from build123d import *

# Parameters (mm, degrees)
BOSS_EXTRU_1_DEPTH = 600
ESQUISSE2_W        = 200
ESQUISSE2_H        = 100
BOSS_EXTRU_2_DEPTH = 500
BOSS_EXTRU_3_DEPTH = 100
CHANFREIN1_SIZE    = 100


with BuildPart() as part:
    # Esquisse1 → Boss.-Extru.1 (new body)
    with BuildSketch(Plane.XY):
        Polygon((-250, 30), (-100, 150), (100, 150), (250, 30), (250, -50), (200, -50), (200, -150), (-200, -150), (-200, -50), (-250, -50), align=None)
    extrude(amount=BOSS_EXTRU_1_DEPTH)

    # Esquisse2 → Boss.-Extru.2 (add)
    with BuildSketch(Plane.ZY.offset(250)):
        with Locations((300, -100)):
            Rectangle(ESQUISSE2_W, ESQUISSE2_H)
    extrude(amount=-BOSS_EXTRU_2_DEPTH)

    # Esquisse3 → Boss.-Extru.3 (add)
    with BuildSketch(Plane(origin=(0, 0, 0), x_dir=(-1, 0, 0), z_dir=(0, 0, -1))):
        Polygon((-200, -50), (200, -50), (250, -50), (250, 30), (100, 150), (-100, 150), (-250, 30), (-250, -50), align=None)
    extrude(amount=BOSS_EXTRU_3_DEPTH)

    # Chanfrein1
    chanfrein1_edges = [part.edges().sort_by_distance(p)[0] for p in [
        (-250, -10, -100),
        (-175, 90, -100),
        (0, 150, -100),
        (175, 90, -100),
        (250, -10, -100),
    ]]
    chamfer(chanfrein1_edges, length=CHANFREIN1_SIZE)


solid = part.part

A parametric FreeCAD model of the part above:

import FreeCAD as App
import Part
import Sketcher

V = App.Vector


def edges_at(feature, points):
    """Names of the edges that pass closest to the given points."""
    edges = feature.Shape.Edges
    near = lambda p: min(range(len(edges)), key=lambda i: edges[i].distToShape(Part.Vertex(*p))[0])
    return sorted({f"Edge{near(p) + 1}" for p in points})

doc = App.newDocument("Part")
body = doc.addObject("PartDesign::Body", "Body")

# Sketch on XY plane
sketch1 = body.newObject("Sketcher::SketchObject", "Sketch")
sketch1.AttachmentSupport = (doc.getObject("XY_Plane"), [""])
sketch1.MapMode = "FlatFace"
sketch1.addGeometry(Part.LineSegment(V(-100, 150, 0), V(-250, 30, 0)), False)
sketch1.addGeometry(Part.LineSegment(V(-250, 30, 0), V(-250, -50, 0)), False)
sketch1.addGeometry(Part.LineSegment(V(-250, -50, 0), V(-200, -50, 0)), False)
sketch1.addGeometry(Part.LineSegment(V(-200, -50, 0), V(-200, -150, 0)), False)
sketch1.addGeometry(Part.LineSegment(V(-200, -150, 0), V(200, -150, 0)), False)
sketch1.addGeometry(Part.LineSegment(V(200, -150, 0), V(200, -50, 0)), False)
sketch1.addGeometry(Part.LineSegment(V(200, -50, 0), V(250, -50, 0)), False)
sketch1.addGeometry(Part.LineSegment(V(250, -50, 0), V(250, 30, 0)), False)
sketch1.addGeometry(Part.LineSegment(V(250, 30, 0), V(100, 150, 0)), False)
sketch1.addGeometry(Part.LineSegment(V(100, 150, 0), V(-100, 150, 0)), False)
sketch1.addConstraint(Sketcher.Constraint("Coincident", 0, 2, 1, 1))
sketch1.addConstraint(Sketcher.Constraint("Coincident", 1, 2, 2, 1))
sketch1.addConstraint(Sketcher.Constraint("Coincident", 2, 2, 3, 1))
sketch1.addConstraint(Sketcher.Constraint("Coincident", 3, 2, 4, 1))
sketch1.addConstraint(Sketcher.Constraint("Coincident", 4, 2, 5, 1))
sketch1.addConstraint(Sketcher.Constraint("Coincident", 5, 2, 6, 1))
sketch1.addConstraint(Sketcher.Constraint("Coincident", 6, 2, 7, 1))
sketch1.addConstraint(Sketcher.Constraint("Coincident", 7, 2, 8, 1))
sketch1.addConstraint(Sketcher.Constraint("Coincident", 8, 2, 9, 1))
sketch1.addConstraint(Sketcher.Constraint("Coincident", 9, 2, 0, 1))
sketch1.addConstraint(Sketcher.Constraint("Vertical", 1))
sketch1.addConstraint(Sketcher.Constraint("Horizontal", 2))
sketch1.addConstraint(Sketcher.Constraint("Vertical", 3))
sketch1.addConstraint(Sketcher.Constraint("Horizontal", 4))
sketch1.addConstraint(Sketcher.Constraint("Vertical", 5))
sketch1.addConstraint(Sketcher.Constraint("Horizontal", 6))
sketch1.addConstraint(Sketcher.Constraint("Vertical", 7))
sketch1.addConstraint(Sketcher.Constraint("Horizontal", 9))
sketch1.addConstraint(Sketcher.Constraint("Symmetric", 2, 2, 5, 2, -2))
sketch1.addConstraint(Sketcher.Constraint("Symmetric", 0, 2, 7, 2, -2))
sketch1.addConstraint(Sketcher.Constraint("Equal", 0, 8))
sketch1.addConstraint(Sketcher.Constraint("DistanceX", 2, 1, 2, 2, 50.0))
sketch1.addConstraint(Sketcher.Constraint("DistanceX", 4, 1, 4, 2, 400.0))
sketch1.addConstraint(Sketcher.Constraint("DistanceX", 9, 2, 9, 1, 200.0))
sketch1.addConstraint(Sketcher.Constraint("DistanceY", 1, 2, 1, 1, 80.0))
sketch1.addConstraint(Sketcher.Constraint("DistanceY", 3, 2, 3, 1, 100.0))
sketch1.addConstraint(Sketcher.Constraint("DistanceY", -1, 1, 0, 2, 30.0))
sketch1.addConstraint(Sketcher.Constraint("DistanceY", -1, 1, 8, 2, 150.0))
pad1 = body.newObject("PartDesign::Pad", "Pad")
pad1.Profile = sketch1
pad1.Length = 600

# Sketch on YZ plane
sketch2 = body.newObject("Sketcher::SketchObject", "Sketch001")
sketch2.AttachmentSupport = (doc.getObject("YZ_Plane"), [""])
sketch2.MapMode = "FlatFace"
sketch2.AttachmentOffset = App.Placement(V(0, 0, -250), App.Rotation())
sketch2.addGeometry(Part.LineSegment(V(-50, 200, 0), V(-150, 200, 0)), False)
sketch2.addGeometry(Part.LineSegment(V(-150, 200, 0), V(-150, 400, 0)), False)
sketch2.addGeometry(Part.LineSegment(V(-150, 400, 0), V(-50, 400, 0)), False)
sketch2.addGeometry(Part.LineSegment(V(-50, 400, 0), V(-50, 200, 0)), False)
sketch2.addConstraint(Sketcher.Constraint("Coincident", 0, 2, 1, 1))
sketch2.addConstraint(Sketcher.Constraint("Coincident", 1, 2, 2, 1))
sketch2.addConstraint(Sketcher.Constraint("Coincident", 2, 2, 3, 1))
sketch2.addConstraint(Sketcher.Constraint("Coincident", 3, 2, 0, 1))
sketch2.addConstraint(Sketcher.Constraint("Horizontal", 0))
sketch2.addConstraint(Sketcher.Constraint("Vertical", 1))
sketch2.addConstraint(Sketcher.Constraint("Horizontal", 2))
sketch2.addConstraint(Sketcher.Constraint("Vertical", 3))
sketch2.addConstraint(Sketcher.Constraint("DistanceX", 0, 2, 0, 1, 100.0))
sketch2.addConstraint(Sketcher.Constraint("DistanceY", 1, 1, 1, 2, 200.0))
sketch2.addConstraint(Sketcher.Constraint("DistanceX", 0, 2, -1, 1, 150.0))
sketch2.addConstraint(Sketcher.Constraint("DistanceY", -1, 1, 0, 2, 200.0))
pad2 = body.newObject("PartDesign::Pad", "Pad001")
pad2.Profile = sketch2
pad2.Length = 500

# Sketch on XY plane
sketch3 = body.newObject("Sketcher::SketchObject", "Sketch002")
sketch3.AttachmentSupport = (doc.getObject("XY_Plane"), [""])
sketch3.MapMode = "FlatFace"
sketch3.addGeometry(Part.LineSegment(V(-250, -50, 0), V(-250, 30, 0)), False)
sketch3.addGeometry(Part.LineSegment(V(-250, 30, 0), V(-100, 150, 0)), False)
sketch3.addGeometry(Part.LineSegment(V(-100, 150, 0), V(100, 150, 0)), False)
sketch3.addGeometry(Part.LineSegment(V(100, 150, 0), V(250, 30, 0)), False)
sketch3.addGeometry(Part.LineSegment(V(250, 30, 0), V(250, -50, 0)), False)
sketch3.addGeometry(Part.LineSegment(V(250, -50, 0), V(-250, -50, 0)), False)
sketch3.addConstraint(Sketcher.Constraint("Coincident", 0, 2, 1, 1))
sketch3.addConstraint(Sketcher.Constraint("Coincident", 1, 2, 2, 1))
sketch3.addConstraint(Sketcher.Constraint("Coincident", 2, 2, 3, 1))
sketch3.addConstraint(Sketcher.Constraint("Coincident", 3, 2, 4, 1))
sketch3.addConstraint(Sketcher.Constraint("Coincident", 4, 2, 5, 1))
sketch3.addConstraint(Sketcher.Constraint("Coincident", 5, 2, 0, 1))
sketch3.addConstraint(Sketcher.Constraint("Vertical", 0))
sketch3.addConstraint(Sketcher.Constraint("Horizontal", 2))
sketch3.addConstraint(Sketcher.Constraint("Vertical", 4))
sketch3.addConstraint(Sketcher.Constraint("Horizontal", 5))
sketch3.addConstraint(Sketcher.Constraint("Symmetric", 0, 2, 3, 2, -2))
sketch3.addConstraint(Sketcher.Constraint("Equal", 1, 3))
sketch3.addConstraint(Sketcher.Constraint("DistanceX", 2, 1, 2, 2, 200.0))
sketch3.addConstraint(Sketcher.Constraint("DistanceX", 5, 2, 5, 1, 500.0))
sketch3.addConstraint(Sketcher.Constraint("DistanceY", 0, 1, 0, 2, 80.0))
sketch3.addConstraint(Sketcher.Constraint("DistanceY", -1, 1, 0, 2, 30.0))
sketch3.addConstraint(Sketcher.Constraint("DistanceY", -1, 1, 1, 2, 150.0))
pad3 = body.newObject("PartDesign::Pad", "Pad002")
pad3.Profile = sketch3
pad3.Length = 100
pad3.Reversed = True
doc.recompute()

chamfer = body.newObject("PartDesign::Chamfer", "Chamfer")
chamfer.Base = (pad3, edges_at(pad3, [
    (-250, -10, -100),
    (-175, 90, -100),
    (0, 150, -100),
    (175, 90, -100),
    (250, -10, -100),
]))
chamfer.Size = 100

doc.recompute()
